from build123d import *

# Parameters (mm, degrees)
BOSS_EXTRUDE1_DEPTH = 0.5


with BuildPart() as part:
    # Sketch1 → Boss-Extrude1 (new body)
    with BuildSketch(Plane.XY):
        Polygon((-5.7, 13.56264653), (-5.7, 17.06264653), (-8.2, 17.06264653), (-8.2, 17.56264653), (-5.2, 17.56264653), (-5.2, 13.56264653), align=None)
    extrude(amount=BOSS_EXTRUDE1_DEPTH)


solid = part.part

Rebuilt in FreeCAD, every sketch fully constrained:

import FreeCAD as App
import Part
import Sketcher

V = App.Vector
Q = App.Units.Quantity

doc = App.newDocument("Part")
body = doc.addObject("PartDesign::Body", "Body")

# Sketch on XY plane
sketch1 = body.newObject("Sketcher::SketchObject", "Sketch")
sketch1.AttachmentSupport = (doc.getObject("XY_Plane"), [""])
sketch1.MapMode = "FlatFace"
sketch1.addGeometry([
    Part.LineSegment(V(-5.7, 17.1, 0), V(-5.7, 13.6, 0)),  # 0
    Part.LineSegment(V(-5.7, 13.6, 0), V(-5.2, 13.6, 0)),  # 1
    Part.LineSegment(V(-5.2, 13.6, 0), V(-5.2, 17.6, 0)),  # 2
    Part.LineSegment(V(-5.2, 17.6, 0), V(-8.2, 17.6, 0)),  # 3
    Part.LineSegment(V(-8.2, 17.6, 0), V(-8.2, 17.1, 0)),  # 4
    Part.LineSegment(V(-8.2, 17.1, 0), V(-5.7, 17.1, 0)),  # 5
], False)
sketch1.addConstraint([
    Sketcher.Constraint("Coincident", 0, 2, 1, 1),
    Sketcher.Constraint("Coincident", 1, 2, 2, 1),
    Sketcher.Constraint("Coincident", 2, 2, 3, 1),
    Sketcher.Constraint("Coincident", 3, 2, 4, 1),
    Sketcher.Constraint("Coincident", 4, 2, 5, 1),
    Sketcher.Constraint("Coincident", 5, 2, 0, 1),
    Sketcher.Constraint("Vertical", 0),
    Sketcher.Constraint("Horizontal", 1),
    Sketcher.Constraint("Vertical", 2),
    Sketcher.Constraint("Horizontal", 3),
    Sketcher.Constraint("Vertical", 4),
    Sketcher.Constraint("Horizontal", 5),
    Sketcher.Constraint("Equal", 1, 4),
    Sketcher.Constraint("DistanceX", 3, 2, 3, 1, Q("3 mm")),
    Sketcher.Constraint("DistanceY", 2, 1, 2, 2, Q("4 mm")),
    Sketcher.Constraint("DistanceX", 1, 1, 1, 2, Q("0.5 mm")),
    Sketcher.Constraint("DistanceX", 0, 2, -1, 1, Q("5.7 mm")),
    Sketcher.Constraint("DistanceY", -1, 1, 0, 2, Q("13.562647 mm")),
])
pad1 = body.newObject("PartDesign::Pad", "Pad")
pad1.Profile = sketch1
pad1.Length = 0.5

doc.recompute()
